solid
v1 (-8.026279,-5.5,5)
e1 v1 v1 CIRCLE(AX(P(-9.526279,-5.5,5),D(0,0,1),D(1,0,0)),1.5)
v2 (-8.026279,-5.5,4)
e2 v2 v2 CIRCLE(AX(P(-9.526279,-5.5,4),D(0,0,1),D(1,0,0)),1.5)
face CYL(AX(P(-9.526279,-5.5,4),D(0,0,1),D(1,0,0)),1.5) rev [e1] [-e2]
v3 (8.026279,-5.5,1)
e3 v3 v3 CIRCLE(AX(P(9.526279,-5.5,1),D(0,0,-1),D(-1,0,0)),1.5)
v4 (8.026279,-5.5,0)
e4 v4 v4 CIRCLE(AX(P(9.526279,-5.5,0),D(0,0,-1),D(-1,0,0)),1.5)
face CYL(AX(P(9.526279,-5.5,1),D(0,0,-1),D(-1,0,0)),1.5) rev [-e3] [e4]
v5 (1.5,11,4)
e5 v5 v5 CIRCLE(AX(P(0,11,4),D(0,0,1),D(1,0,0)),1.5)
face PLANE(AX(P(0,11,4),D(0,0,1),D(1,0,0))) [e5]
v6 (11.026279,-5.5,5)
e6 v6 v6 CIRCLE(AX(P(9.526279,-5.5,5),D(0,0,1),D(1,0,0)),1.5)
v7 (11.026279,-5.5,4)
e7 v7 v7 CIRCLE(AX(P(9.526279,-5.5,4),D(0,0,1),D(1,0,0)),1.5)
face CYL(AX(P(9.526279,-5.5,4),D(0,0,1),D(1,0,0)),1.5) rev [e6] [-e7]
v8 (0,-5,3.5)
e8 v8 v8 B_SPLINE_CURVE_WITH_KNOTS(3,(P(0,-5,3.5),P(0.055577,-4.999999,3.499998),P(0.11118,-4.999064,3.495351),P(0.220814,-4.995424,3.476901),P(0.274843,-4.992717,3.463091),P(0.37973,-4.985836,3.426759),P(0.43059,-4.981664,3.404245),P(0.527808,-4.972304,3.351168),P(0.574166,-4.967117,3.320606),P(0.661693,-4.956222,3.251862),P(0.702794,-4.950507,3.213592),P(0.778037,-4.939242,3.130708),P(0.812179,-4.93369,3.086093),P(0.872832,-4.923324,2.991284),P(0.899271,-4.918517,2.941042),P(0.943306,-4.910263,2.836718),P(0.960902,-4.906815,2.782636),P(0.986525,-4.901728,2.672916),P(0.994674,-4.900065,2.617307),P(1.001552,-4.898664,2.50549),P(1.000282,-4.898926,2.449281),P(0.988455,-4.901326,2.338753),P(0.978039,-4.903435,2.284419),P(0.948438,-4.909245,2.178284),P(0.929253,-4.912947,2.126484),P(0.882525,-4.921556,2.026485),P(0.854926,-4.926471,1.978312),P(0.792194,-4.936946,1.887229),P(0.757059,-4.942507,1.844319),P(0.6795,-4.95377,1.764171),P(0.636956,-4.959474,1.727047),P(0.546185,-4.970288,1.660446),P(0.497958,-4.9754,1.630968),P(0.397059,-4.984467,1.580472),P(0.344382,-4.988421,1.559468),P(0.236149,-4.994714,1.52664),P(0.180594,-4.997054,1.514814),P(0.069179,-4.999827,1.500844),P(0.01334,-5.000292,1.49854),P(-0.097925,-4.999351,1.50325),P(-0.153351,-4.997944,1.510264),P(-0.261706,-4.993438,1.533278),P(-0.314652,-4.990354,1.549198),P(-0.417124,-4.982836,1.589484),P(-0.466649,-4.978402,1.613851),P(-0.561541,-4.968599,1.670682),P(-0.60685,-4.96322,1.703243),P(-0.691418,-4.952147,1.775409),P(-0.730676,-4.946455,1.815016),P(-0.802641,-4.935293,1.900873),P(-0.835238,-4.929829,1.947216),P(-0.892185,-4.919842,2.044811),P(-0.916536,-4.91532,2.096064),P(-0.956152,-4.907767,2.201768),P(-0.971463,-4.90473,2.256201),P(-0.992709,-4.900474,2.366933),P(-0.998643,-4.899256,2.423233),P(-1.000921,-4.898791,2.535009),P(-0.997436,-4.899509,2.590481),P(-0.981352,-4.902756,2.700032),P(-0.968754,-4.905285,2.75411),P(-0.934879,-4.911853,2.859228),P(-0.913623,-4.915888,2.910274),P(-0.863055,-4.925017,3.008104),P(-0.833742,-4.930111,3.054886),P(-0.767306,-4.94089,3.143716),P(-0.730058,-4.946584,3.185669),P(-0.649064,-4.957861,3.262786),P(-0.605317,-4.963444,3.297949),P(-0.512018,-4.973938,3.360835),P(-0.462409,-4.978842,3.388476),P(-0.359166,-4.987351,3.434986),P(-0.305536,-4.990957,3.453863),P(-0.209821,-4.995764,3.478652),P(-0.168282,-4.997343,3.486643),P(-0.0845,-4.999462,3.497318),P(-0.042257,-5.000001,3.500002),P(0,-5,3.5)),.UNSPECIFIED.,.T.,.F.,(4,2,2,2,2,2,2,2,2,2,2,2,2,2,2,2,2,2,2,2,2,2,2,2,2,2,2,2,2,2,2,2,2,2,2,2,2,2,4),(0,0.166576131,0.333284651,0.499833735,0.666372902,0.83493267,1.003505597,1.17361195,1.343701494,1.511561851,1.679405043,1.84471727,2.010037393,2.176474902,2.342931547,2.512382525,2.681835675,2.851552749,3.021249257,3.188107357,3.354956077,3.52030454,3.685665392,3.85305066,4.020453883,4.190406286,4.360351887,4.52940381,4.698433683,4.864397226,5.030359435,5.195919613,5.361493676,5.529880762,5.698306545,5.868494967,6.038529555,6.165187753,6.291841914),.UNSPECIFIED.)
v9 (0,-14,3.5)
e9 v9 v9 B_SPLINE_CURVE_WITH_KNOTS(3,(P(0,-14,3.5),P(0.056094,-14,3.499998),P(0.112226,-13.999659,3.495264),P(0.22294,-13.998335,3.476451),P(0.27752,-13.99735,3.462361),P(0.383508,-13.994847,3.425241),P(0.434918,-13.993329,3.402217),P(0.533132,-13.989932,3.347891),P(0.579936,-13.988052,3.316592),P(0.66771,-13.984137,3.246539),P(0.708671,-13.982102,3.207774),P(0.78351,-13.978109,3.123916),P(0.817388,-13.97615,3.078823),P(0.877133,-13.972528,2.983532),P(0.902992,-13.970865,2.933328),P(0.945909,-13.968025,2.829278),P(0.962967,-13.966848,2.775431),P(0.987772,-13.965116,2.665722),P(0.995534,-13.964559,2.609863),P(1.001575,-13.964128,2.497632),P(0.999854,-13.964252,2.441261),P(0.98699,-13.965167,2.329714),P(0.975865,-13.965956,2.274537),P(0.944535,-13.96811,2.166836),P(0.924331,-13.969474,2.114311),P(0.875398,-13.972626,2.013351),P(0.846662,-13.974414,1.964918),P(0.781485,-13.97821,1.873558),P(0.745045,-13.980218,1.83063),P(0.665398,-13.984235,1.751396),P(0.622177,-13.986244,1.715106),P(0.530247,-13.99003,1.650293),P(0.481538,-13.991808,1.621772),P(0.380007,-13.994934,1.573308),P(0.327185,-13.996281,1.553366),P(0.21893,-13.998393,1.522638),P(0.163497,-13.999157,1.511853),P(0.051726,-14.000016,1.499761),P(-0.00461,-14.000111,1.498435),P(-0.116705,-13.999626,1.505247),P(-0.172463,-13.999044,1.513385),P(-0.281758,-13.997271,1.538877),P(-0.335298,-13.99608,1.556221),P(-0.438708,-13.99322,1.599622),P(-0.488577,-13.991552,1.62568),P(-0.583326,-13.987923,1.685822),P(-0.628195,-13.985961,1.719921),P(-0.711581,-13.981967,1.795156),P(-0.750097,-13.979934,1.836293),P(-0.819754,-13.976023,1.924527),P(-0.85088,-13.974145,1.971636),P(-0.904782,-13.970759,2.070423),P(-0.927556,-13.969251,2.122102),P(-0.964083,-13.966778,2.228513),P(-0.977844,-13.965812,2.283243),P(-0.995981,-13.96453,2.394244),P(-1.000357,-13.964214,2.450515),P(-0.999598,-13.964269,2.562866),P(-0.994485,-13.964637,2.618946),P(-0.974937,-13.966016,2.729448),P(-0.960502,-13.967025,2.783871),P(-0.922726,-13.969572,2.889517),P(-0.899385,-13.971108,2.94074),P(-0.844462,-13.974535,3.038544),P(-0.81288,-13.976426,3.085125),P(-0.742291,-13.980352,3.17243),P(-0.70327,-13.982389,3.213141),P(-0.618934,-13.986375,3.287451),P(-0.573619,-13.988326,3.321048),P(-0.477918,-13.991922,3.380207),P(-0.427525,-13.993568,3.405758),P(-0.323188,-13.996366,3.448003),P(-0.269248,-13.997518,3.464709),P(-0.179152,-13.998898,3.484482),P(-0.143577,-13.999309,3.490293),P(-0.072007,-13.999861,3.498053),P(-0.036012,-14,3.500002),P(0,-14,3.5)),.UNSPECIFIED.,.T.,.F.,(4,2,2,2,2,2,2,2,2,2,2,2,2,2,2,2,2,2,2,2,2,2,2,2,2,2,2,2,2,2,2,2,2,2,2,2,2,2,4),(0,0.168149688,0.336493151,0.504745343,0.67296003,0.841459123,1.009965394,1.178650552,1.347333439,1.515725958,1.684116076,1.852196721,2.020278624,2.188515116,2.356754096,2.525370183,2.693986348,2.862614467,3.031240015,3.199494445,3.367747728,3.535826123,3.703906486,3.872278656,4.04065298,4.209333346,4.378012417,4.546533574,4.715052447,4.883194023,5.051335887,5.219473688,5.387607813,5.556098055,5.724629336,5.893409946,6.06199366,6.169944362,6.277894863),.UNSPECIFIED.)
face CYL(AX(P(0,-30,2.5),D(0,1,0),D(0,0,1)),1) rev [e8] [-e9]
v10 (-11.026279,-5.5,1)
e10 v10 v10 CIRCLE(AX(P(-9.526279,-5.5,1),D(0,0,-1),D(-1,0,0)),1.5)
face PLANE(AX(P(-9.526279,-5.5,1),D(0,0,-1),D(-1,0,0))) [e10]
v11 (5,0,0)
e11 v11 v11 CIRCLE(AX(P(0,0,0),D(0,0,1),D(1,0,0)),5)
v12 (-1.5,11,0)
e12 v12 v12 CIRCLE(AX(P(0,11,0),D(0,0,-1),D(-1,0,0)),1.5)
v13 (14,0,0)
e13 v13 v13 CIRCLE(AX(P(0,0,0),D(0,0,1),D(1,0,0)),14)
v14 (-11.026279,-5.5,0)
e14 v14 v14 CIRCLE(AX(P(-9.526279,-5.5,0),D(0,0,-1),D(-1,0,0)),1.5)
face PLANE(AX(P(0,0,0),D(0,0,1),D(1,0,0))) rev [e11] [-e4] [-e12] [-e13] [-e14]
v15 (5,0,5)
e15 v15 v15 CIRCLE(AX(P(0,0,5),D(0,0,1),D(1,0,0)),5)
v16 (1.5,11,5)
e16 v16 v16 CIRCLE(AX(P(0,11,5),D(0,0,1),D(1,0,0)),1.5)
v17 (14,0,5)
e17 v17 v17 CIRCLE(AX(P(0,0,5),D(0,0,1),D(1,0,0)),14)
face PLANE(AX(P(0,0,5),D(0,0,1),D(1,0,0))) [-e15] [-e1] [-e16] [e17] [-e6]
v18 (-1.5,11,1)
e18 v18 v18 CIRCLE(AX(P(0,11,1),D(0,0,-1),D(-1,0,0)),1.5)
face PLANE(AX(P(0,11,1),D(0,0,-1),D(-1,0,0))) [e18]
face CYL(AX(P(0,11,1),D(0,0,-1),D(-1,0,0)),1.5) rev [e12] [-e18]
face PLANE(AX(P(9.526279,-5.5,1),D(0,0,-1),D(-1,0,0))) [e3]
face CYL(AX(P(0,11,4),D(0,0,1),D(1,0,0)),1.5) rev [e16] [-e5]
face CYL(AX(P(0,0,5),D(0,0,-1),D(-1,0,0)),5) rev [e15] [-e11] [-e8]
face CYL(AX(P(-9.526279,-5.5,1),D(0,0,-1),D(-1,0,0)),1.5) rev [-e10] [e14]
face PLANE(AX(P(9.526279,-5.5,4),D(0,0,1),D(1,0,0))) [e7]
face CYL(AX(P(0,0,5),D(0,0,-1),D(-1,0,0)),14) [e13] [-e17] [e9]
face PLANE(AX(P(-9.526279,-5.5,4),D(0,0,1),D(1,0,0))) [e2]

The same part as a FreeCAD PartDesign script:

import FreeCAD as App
import Part
import Sketcher

V = App.Vector

doc = App.newDocument("Part")
body = doc.addObject("PartDesign::Body", "Body")

# Sketch on XY plane
sketch1 = doc.addObject("Sketcher::SketchObject", "Sketch")
body.addObject(sketch1)
sketch1.AttachmentSupport = (doc.XY_Plane, [""])
sketch1.MapMode = "FlatFace"
sketch1.addGeometry([
    Part.Circle(V(0, 0, 0), V(0, 0, 1), 14),
    Part.Circle(V(0, 0, 0), V(0, 0, 1), 5),
], False)
sketch1.addConstraint([
    Sketcher.Constraint("Coincident", 0, 3, -1, 1),
    Sketcher.Constraint("Coincident", 1, 3, -1, 1),
    Sketcher.Constraint("Diameter", 0, 28.0),
    Sketcher.Constraint("Diameter", 1, 10.0),
])
pad1 = doc.addObject("PartDesign::Pad", "Pad")
body.addObject(pad1)
pad1.Profile = sketch1
pad1.Length = 5

# Sketch on XY plane
sketch2 = doc.addObject("Sketcher::SketchObject", "Sketch001")
body.addObject(sketch2)
sketch2.AttachmentSupport = (doc.XY_Plane, [""])
sketch2.MapMode = "FlatFace"
sketch2.AttachmentOffset = App.Placement(V(0, 0, 5), App.Rotation())
sketch2.addGeometry([
    Part.Circle(V(0, 11, 0), V(0, 0, 1), 1.5),
    Part.Circle(V(9.5, -5.5, 0), V(0, 0, 1), 1.5),
    Part.Circle(V(-9.5, -5.5, 0), V(0, 0, 1), 1.5),
], False)
sketch2.addConstraint([
    Sketcher.Constraint("Equal", 0, 1),
    Sketcher.Constraint("Equal", 1, 2),
    Sketcher.Constraint("Symmetric", 1, 3, 2, 3, -2),
    Sketcher.Constraint("PointOnObject", 0, 3, -2),
    Sketcher.Constraint("Diameter", 0, 3.0),
    Sketcher.Constraint("DistanceY", -1, 1, 0, 3, 11.0),
    Sketcher.Constraint("DistanceY", 1, 3, -1, 1, 5.5),
    Sketcher.Constraint("DistanceX", -1, 1, 1, 3, 9.526279),
])
pocket1 = doc.addObject("PartDesign::Pocket", "Pocket")
body.addObject(pocket1)
pocket1.Profile = sketch2
pocket1.Length = 1

# Sketch on XY plane
sketch3 = doc.addObject("Sketcher::SketchObject", "Sketch002")
body.addObject(sketch3)
sketch3.AttachmentSupport = (doc.XY_Plane, [""])
sketch3.MapMode = "FlatFace"
sketch3.addGeometry([
    Part.Circle(V(0, 11, 0), V(0, 0, 1), 1.5),
    Part.Circle(V(-9.5, -5.5, 0), V(0, 0, 1), 1.5),
    Part.Circle(V(9.5, -5.5, 0), V(0, 0, 1), 1.5),
], False)
sketch3.addConstraint([
    Sketcher.Constraint("Equal", 0, 1),
    Sketcher.Constraint("Equal", 1, 2),
    Sketcher.Constraint("Symmetric", 1, 3, 2, 3, -2),
    Sketcher.Constraint("PointOnObject", 0, 3, -2),
    Sketcher.Constraint("Diameter", 0, 3.0),
    Sketcher.Constraint("DistanceY", -1, 1, 0, 3, 11.0),
    Sketcher.Constraint("DistanceY", 1, 3, -1, 1, 5.5),
    Sketcher.Constraint("DistanceX", 1, 3, -1, 1, 9.526279),
])
pocket2 = doc.addObject("PartDesign::Pocket", "Pocket001")
body.addObject(pocket2)
pocket2.Profile = sketch3
pocket2.Length = 1
pocket2.Reversed = True

# Sketch on XZ plane
sketch4 = doc.addObject("Sketcher::SketchObject", "Sketch003")
body.addObject(sketch4)
sketch4.AttachmentSupport = (doc.XZ_Plane, [""])
sketch4.MapMode = "FlatFace"
sketch4.addGeometry(Part.Circle(V(0, 2.5, 0), V(0, 0, 1), 1), False)
sketch4.addConstraint([
    Sketcher.Constraint("PointOnObject", 0, 3, -2),
    Sketcher.Constraint("Diameter", 0, 2.0),
    Sketcher.Constraint("DistanceY", -1, 1, 0, 3, 2.5),
])
pocket3 = doc.addObject("PartDesign::Pocket", "Pocket002")
body.addObject(pocket3)
pocket3.Profile = sketch4
pocket3.Length = 30
pocket3.Reversed = True

doc.recompute()
